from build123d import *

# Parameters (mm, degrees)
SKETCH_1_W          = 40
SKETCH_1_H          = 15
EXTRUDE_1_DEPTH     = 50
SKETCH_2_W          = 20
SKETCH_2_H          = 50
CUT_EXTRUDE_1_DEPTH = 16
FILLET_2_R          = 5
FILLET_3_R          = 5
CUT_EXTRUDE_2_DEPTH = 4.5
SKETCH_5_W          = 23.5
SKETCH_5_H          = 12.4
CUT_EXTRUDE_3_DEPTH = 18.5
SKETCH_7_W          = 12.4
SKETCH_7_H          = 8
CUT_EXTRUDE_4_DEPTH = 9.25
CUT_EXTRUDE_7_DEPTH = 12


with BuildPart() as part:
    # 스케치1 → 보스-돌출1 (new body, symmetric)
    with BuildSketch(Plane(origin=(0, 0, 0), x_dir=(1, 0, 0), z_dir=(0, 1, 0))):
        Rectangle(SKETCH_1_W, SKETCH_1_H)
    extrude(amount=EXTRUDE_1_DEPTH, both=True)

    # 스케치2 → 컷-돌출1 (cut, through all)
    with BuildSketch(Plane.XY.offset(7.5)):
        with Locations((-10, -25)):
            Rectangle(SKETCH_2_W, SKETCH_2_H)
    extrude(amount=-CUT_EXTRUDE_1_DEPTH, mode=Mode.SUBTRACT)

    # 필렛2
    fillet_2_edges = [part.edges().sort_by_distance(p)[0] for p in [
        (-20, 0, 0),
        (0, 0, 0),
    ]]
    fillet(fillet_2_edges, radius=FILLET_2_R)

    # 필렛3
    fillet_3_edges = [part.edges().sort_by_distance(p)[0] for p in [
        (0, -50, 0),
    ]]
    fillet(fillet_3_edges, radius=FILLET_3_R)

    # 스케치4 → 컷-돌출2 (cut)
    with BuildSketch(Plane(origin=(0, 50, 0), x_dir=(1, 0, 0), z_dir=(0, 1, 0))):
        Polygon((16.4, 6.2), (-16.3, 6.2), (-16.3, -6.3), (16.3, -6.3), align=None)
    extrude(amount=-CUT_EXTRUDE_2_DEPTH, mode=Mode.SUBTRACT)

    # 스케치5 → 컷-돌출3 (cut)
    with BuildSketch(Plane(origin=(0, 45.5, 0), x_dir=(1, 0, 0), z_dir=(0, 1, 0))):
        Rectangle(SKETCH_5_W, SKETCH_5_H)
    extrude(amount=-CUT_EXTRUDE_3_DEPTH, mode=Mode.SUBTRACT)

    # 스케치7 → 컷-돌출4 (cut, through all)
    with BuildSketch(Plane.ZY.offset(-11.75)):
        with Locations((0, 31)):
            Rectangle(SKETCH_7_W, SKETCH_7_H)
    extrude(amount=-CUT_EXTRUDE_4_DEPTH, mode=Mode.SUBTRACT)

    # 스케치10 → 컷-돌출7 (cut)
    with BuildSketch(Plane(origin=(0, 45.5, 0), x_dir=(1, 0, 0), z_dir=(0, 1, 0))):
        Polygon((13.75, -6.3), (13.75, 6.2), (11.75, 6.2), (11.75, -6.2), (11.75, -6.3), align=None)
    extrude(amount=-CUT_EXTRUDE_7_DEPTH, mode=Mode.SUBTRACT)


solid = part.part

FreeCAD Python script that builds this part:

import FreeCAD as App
import Part
import Sketcher

V = App.Vector


def edges_at(feature, points):
    """Names of the edges that pass closest to the given points."""
    edges = feature.Shape.Edges
    near = lambda p: min(range(len(edges)), key=lambda i: edges[i].distToShape(Part.Vertex(*p))[0])
    return sorted({f"Edge{near(p) + 1}" for p in points})

doc = App.newDocument("Part")
body = doc.addObject("PartDesign::Body", "Body")

sketch1 = body.newObject("Sketcher::SketchObject", "Sketch")
sketch1.AttachmentSupport = (doc.getObject("XZ_Plane"), [""])
sketch1.MapMode = "FlatFace"
sketch1.addGeometry([
    Part.LineSegment(V(-20, -7.5, 0), V(-20, 7.5, 0)),
    Part.LineSegment(V(-20, 7.5, 0), V(20, 7.5, 0)),
    Part.LineSegment(V(20, 7.5, 0), V(20, -7.5, 0)),
    Part.LineSegment(V(20, -7.5, 0), V(-20, -7.5, 0)),
], False)
sketch1.addConstraint([
    Sketcher.Constraint("Coincident", 0, 2, 1, 1),
    Sketcher.Constraint("Coincident", 1, 2, 2, 1),
    Sketcher.Constraint("Coincident", 2, 2, 3, 1),
    Sketcher.Constraint("Coincident", 3, 2, 0, 1),
    Sketcher.Constraint("Vertical", 0),
    Sketcher.Constraint("Horizontal", 1),
    Sketcher.Constraint("Vertical", 2),
    Sketcher.Constraint("Horizontal", 3),
    Sketcher.Constraint("Symmetric", 0, 2, 2, 2, -1, 1),
    Sketcher.Constraint("DistanceX", 1, 1, 1, 2, 40.0),
    Sketcher.Constraint("DistanceY", 0, 1, 0, 2, 15.0),
])
pad1 = body.newObject("PartDesign::Pad", "Pad")
pad1.Profile = sketch1
pad1.Length = 100
pad1.Midplane = True

sketch2 = body.newObject("Sketcher::SketchObject", "Sketch001")
sketch2.AttachmentSupport = (doc.getObject("XY_Plane"), [""])
sketch2.MapMode = "FlatFace"
sketch2.AttachmentOffset = App.Placement(V(0, 0, 7.5), App.Rotation())
sketch2.addGeometry([
    Part.LineSegment(V(-20, 0, 0), V(-20, -50, 0)),
    Part.LineSegment(V(-20, -50, 0), V(0, -50, 0)),
    Part.LineSegment(V(0, -50, 0), V(0, 0, 0)),
    Part.LineSegment(V(0, 0, 0), V(-20, 0, 0)),
], False)
sketch2.addConstraint([
    Sketcher.Constraint("Coincident", 0, 2, 1, 1),
    Sketcher.Constraint("Coincident", 1, 2, 2, 1),
    Sketcher.Constraint("Coincident", 2, 2, 3, 1),
    Sketcher.Constraint("Coincident", 3, 2, 0, 1),
    Sketcher.Constraint("Vertical", 0),
    Sketcher.Constraint("Horizontal", 1),
    Sketcher.Constraint("Vertical", 2),
    Sketcher.Constraint("Horizontal", 3),
    Sketcher.Constraint("Coincident", 2, 2, -1, 1),
    Sketcher.Constraint("DistanceX", 1, 1, 1, 2, 20.0),
    Sketcher.Constraint("DistanceY", 0, 2, 0, 1, 50.0),
])
pocket1 = body.newObject("PartDesign::Pocket", "Pocket")
pocket1.Profile = sketch2
pocket1.Type = "ThroughAll"
doc.recompute()

fillet = body.newObject("PartDesign::Fillet", "Fillet")
fillet.Base = (pocket1, edges_at(pocket1, [(-20, 0, 0), (0, 0, 0)]))
fillet.Radius = 5
doc.recompute()

fillet2 = body.newObject("PartDesign::Fillet", "Fillet001")
fillet2.Base = (fillet, edges_at(fillet, [(0, -50, 0)]))
fillet2.Radius = 5

sketch3 = body.newObject("Sketcher::SketchObject", "Sketch002")
sketch3.AttachmentSupport = (doc.getObject("XZ_Plane"), [""])
sketch3.MapMode = "FlatFace"
sketch3.AttachmentOffset = App.Placement(V(0, 0, -50), App.Rotation())
sketch3.addGeometry([
    Part.LineSegment(V(16.4, -6.2, 0), V(-16.3, -6.2, 0)),
    Part.LineSegment(V(-16.3, -6.2, 0), V(-16.3, 6.3, 0)),
    Part.LineSegment(V(-16.3, 6.3, 0), V(16.3, 6.3, 0)),
    Part.LineSegment(V(16.3, 6.3, 0), V(16.4, -6.2, 0)),
], False)
sketch3.addConstraint([
    Sketcher.Constraint("Coincident", 0, 2, 1, 1),
    Sketcher.Constraint("Coincident", 1, 2, 2, 1),
    Sketcher.Constraint("Coincident", 2, 2, 3, 1),
    Sketcher.Constraint("Coincident", 3, 2, 0, 1),
    Sketcher.Constraint("Horizontal", 0),
    Sketcher.Constraint("Vertical", 1),
    Sketcher.Constraint("Horizontal", 2),
    Sketcher.Constraint("DistanceX", 0, 2, 0, 1, 32.7),
    Sketcher.Constraint("DistanceX", 2, 1, 2, 2, 32.6),
    Sketcher.Constraint("DistanceY", 1, 1, 1, 2, 12.5),
    Sketcher.Constraint("DistanceX", 0, 2, -1, 1, 16.3),
    Sketcher.Constraint("DistanceY", 0, 2, -1, 1, 6.2),
])
pocket2 = body.newObject("PartDesign::Pocket", "Pocket001")
pocket2.Profile = sketch3
pocket2.Length = 4.5
pocket2.Reversed = True

sketch4 = body.newObject("Sketcher::SketchObject", "Sketch003")
sketch4.AttachmentSupport = (doc.getObject("XZ_Plane"), [""])
sketch4.MapMode = "FlatFace"
sketch4.AttachmentOffset = App.Placement(V(0, 0, -45.5), App.Rotation())
sketch4.addGeometry([
    Part.LineSegment(V(-11.75, -6.2, 0), V(-11.75, 6.2, 0)),
    Part.LineSegment(V(-11.75, 6.2, 0), V(11.75, 6.2, 0)),
    Part.LineSegment(V(11.75, 6.2, 0), V(11.75, -6.2, 0)),
    Part.LineSegment(V(11.75, -6.2, 0), V(-11.75, -6.2, 0)),
], False)
sketch4.addConstraint([
    Sketcher.Constraint("Coincident", 0, 2, 1, 1),
    Sketcher.Constraint("Coincident", 1, 2, 2, 1),
    Sketcher.Constraint("Coincident", 2, 2, 3, 1),
    Sketcher.Constraint("Coincident", 3, 2, 0, 1),
    Sketcher.Constraint("Vertical", 0),
    Sketcher.Constraint("Horizontal", 1),
    Sketcher.Constraint("Vertical", 2),
    Sketcher.Constraint("Horizontal", 3),
    Sketcher.Constraint("Symmetric", 0, 2, 2, 2, -1, 1),
    Sketcher.Constraint("DistanceX", 1, 1, 1, 2, 23.5),
    Sketcher.Constraint("DistanceY", 0, 1, 0, 2, 12.4),
])
pocket3 = body.newObject("PartDesign::Pocket", "Pocket002")
pocket3.Profile = sketch4
pocket3.Length = 18.5
pocket3.Reversed = True

sketch5 = body.newObject("Sketcher::SketchObject", "Sketch004")
sketch5.AttachmentSupport = (doc.getObject("YZ_Plane"), [""])
sketch5.MapMode = "FlatFace"
sketch5.AttachmentOffset = App.Placement(V(0, 0, 11.75), App.Rotation())
sketch5.addGeometry([
    Part.LineSegment(V(35, -6.2, 0), V(27, -6.2, 0)),
    Part.LineSegment(V(27, -6.2, 0), V(27, 6.2, 0)),
    Part.LineSegment(V(27, 6.2, 0), V(35, 6.2, 0)),
    Part.LineSegment(V(35, 6.2, 0), V(35, -6.2, 0)),
], False)
sketch5.addConstraint([
    Sketcher.Constraint("Coincident", 0, 2, 1, 1),
    Sketcher.Constraint("Coincident", 1, 2, 2, 1),
    Sketcher.Constraint("Coincident", 2, 2, 3, 1),
    Sketcher.Constraint("Coincident", 3, 2, 0, 1),
    Sketcher.Constraint("Horizontal", 0),
    Sketcher.Constraint("Vertical", 1),
    Sketcher.Constraint("Horizontal", 2),
    Sketcher.Constraint("Vertical", 3),
    Sketcher.Constraint("DistanceX", 0, 2, 0, 1, 8.0),
    Sketcher.Constraint("DistanceY", 1, 1, 1, 2, 12.4),
    Sketcher.Constraint("DistanceX", -1, 1, 0, 2, 27.0),
    Sketcher.Constraint("DistanceY", 0, 2, -1, 1, 6.2),
])
pocket4 = body.newObject("PartDesign::Pocket", "Pocket003")
pocket4.Profile = sketch5
pocket4.Type = "ThroughAll"
pocket4.Reversed = True

sketch6 = body.newObject("Sketcher::SketchObject", "Sketch005")
sketch6.AttachmentSupport = (doc.getObject("XZ_Plane"), [""])
sketch6.MapMode = "FlatFace"
sketch6.AttachmentOffset = App.Placement(V(0, 0, -45.5), App.Rotation())
sketch6.addGeometry([
    Part.LineSegment(V(13.75, 6.3, 0), V(13.75, -6.2, 0)),
    Part.LineSegment(V(13.75, -6.2, 0), V(11.75, -6.2, 0)),
    Part.LineSegment(V(11.75, -6.2, 0), V(11.75, 6.3, 0)),
    Part.LineSegment(V(11.75, 6.3, 0), V(13.75, 6.3, 0)),
], False)
sketch6.addConstraint([
    Sketcher.Constraint("Coincident", 0, 2, 1, 1),
    Sketcher.Constraint("Coincident", 1, 2, 2, 1),
    Sketcher.Constraint("Coincident", 2, 2, 3, 1),
    Sketcher.Constraint("Coincident", 3, 2, 0, 1),
    Sketcher.Constraint("Vertical", 0),
    Sketcher.Constraint("Horizontal", 1),
    Sketcher.Constraint("Vertical", 2),
    Sketcher.Constraint("Horizontal", 3),
    Sketcher.Constraint("DistanceX", 1, 2, 1, 1, 2.0),
    Sketcher.Constraint("DistanceY", 0, 2, 0, 1, 12.5),
    Sketcher.Constraint("DistanceY", 0, 2, -1, 1, 6.2),
    Sketcher.Constraint("DistanceX", -1, 1, 0, 2, 13.75),
])
pocket5 = body.newObject("PartDesign::Pocket", "Pocket004")
pocket5.Profile = sketch6
pocket5.Length = 12
pocket5.Reversed = True

doc.recompute()
